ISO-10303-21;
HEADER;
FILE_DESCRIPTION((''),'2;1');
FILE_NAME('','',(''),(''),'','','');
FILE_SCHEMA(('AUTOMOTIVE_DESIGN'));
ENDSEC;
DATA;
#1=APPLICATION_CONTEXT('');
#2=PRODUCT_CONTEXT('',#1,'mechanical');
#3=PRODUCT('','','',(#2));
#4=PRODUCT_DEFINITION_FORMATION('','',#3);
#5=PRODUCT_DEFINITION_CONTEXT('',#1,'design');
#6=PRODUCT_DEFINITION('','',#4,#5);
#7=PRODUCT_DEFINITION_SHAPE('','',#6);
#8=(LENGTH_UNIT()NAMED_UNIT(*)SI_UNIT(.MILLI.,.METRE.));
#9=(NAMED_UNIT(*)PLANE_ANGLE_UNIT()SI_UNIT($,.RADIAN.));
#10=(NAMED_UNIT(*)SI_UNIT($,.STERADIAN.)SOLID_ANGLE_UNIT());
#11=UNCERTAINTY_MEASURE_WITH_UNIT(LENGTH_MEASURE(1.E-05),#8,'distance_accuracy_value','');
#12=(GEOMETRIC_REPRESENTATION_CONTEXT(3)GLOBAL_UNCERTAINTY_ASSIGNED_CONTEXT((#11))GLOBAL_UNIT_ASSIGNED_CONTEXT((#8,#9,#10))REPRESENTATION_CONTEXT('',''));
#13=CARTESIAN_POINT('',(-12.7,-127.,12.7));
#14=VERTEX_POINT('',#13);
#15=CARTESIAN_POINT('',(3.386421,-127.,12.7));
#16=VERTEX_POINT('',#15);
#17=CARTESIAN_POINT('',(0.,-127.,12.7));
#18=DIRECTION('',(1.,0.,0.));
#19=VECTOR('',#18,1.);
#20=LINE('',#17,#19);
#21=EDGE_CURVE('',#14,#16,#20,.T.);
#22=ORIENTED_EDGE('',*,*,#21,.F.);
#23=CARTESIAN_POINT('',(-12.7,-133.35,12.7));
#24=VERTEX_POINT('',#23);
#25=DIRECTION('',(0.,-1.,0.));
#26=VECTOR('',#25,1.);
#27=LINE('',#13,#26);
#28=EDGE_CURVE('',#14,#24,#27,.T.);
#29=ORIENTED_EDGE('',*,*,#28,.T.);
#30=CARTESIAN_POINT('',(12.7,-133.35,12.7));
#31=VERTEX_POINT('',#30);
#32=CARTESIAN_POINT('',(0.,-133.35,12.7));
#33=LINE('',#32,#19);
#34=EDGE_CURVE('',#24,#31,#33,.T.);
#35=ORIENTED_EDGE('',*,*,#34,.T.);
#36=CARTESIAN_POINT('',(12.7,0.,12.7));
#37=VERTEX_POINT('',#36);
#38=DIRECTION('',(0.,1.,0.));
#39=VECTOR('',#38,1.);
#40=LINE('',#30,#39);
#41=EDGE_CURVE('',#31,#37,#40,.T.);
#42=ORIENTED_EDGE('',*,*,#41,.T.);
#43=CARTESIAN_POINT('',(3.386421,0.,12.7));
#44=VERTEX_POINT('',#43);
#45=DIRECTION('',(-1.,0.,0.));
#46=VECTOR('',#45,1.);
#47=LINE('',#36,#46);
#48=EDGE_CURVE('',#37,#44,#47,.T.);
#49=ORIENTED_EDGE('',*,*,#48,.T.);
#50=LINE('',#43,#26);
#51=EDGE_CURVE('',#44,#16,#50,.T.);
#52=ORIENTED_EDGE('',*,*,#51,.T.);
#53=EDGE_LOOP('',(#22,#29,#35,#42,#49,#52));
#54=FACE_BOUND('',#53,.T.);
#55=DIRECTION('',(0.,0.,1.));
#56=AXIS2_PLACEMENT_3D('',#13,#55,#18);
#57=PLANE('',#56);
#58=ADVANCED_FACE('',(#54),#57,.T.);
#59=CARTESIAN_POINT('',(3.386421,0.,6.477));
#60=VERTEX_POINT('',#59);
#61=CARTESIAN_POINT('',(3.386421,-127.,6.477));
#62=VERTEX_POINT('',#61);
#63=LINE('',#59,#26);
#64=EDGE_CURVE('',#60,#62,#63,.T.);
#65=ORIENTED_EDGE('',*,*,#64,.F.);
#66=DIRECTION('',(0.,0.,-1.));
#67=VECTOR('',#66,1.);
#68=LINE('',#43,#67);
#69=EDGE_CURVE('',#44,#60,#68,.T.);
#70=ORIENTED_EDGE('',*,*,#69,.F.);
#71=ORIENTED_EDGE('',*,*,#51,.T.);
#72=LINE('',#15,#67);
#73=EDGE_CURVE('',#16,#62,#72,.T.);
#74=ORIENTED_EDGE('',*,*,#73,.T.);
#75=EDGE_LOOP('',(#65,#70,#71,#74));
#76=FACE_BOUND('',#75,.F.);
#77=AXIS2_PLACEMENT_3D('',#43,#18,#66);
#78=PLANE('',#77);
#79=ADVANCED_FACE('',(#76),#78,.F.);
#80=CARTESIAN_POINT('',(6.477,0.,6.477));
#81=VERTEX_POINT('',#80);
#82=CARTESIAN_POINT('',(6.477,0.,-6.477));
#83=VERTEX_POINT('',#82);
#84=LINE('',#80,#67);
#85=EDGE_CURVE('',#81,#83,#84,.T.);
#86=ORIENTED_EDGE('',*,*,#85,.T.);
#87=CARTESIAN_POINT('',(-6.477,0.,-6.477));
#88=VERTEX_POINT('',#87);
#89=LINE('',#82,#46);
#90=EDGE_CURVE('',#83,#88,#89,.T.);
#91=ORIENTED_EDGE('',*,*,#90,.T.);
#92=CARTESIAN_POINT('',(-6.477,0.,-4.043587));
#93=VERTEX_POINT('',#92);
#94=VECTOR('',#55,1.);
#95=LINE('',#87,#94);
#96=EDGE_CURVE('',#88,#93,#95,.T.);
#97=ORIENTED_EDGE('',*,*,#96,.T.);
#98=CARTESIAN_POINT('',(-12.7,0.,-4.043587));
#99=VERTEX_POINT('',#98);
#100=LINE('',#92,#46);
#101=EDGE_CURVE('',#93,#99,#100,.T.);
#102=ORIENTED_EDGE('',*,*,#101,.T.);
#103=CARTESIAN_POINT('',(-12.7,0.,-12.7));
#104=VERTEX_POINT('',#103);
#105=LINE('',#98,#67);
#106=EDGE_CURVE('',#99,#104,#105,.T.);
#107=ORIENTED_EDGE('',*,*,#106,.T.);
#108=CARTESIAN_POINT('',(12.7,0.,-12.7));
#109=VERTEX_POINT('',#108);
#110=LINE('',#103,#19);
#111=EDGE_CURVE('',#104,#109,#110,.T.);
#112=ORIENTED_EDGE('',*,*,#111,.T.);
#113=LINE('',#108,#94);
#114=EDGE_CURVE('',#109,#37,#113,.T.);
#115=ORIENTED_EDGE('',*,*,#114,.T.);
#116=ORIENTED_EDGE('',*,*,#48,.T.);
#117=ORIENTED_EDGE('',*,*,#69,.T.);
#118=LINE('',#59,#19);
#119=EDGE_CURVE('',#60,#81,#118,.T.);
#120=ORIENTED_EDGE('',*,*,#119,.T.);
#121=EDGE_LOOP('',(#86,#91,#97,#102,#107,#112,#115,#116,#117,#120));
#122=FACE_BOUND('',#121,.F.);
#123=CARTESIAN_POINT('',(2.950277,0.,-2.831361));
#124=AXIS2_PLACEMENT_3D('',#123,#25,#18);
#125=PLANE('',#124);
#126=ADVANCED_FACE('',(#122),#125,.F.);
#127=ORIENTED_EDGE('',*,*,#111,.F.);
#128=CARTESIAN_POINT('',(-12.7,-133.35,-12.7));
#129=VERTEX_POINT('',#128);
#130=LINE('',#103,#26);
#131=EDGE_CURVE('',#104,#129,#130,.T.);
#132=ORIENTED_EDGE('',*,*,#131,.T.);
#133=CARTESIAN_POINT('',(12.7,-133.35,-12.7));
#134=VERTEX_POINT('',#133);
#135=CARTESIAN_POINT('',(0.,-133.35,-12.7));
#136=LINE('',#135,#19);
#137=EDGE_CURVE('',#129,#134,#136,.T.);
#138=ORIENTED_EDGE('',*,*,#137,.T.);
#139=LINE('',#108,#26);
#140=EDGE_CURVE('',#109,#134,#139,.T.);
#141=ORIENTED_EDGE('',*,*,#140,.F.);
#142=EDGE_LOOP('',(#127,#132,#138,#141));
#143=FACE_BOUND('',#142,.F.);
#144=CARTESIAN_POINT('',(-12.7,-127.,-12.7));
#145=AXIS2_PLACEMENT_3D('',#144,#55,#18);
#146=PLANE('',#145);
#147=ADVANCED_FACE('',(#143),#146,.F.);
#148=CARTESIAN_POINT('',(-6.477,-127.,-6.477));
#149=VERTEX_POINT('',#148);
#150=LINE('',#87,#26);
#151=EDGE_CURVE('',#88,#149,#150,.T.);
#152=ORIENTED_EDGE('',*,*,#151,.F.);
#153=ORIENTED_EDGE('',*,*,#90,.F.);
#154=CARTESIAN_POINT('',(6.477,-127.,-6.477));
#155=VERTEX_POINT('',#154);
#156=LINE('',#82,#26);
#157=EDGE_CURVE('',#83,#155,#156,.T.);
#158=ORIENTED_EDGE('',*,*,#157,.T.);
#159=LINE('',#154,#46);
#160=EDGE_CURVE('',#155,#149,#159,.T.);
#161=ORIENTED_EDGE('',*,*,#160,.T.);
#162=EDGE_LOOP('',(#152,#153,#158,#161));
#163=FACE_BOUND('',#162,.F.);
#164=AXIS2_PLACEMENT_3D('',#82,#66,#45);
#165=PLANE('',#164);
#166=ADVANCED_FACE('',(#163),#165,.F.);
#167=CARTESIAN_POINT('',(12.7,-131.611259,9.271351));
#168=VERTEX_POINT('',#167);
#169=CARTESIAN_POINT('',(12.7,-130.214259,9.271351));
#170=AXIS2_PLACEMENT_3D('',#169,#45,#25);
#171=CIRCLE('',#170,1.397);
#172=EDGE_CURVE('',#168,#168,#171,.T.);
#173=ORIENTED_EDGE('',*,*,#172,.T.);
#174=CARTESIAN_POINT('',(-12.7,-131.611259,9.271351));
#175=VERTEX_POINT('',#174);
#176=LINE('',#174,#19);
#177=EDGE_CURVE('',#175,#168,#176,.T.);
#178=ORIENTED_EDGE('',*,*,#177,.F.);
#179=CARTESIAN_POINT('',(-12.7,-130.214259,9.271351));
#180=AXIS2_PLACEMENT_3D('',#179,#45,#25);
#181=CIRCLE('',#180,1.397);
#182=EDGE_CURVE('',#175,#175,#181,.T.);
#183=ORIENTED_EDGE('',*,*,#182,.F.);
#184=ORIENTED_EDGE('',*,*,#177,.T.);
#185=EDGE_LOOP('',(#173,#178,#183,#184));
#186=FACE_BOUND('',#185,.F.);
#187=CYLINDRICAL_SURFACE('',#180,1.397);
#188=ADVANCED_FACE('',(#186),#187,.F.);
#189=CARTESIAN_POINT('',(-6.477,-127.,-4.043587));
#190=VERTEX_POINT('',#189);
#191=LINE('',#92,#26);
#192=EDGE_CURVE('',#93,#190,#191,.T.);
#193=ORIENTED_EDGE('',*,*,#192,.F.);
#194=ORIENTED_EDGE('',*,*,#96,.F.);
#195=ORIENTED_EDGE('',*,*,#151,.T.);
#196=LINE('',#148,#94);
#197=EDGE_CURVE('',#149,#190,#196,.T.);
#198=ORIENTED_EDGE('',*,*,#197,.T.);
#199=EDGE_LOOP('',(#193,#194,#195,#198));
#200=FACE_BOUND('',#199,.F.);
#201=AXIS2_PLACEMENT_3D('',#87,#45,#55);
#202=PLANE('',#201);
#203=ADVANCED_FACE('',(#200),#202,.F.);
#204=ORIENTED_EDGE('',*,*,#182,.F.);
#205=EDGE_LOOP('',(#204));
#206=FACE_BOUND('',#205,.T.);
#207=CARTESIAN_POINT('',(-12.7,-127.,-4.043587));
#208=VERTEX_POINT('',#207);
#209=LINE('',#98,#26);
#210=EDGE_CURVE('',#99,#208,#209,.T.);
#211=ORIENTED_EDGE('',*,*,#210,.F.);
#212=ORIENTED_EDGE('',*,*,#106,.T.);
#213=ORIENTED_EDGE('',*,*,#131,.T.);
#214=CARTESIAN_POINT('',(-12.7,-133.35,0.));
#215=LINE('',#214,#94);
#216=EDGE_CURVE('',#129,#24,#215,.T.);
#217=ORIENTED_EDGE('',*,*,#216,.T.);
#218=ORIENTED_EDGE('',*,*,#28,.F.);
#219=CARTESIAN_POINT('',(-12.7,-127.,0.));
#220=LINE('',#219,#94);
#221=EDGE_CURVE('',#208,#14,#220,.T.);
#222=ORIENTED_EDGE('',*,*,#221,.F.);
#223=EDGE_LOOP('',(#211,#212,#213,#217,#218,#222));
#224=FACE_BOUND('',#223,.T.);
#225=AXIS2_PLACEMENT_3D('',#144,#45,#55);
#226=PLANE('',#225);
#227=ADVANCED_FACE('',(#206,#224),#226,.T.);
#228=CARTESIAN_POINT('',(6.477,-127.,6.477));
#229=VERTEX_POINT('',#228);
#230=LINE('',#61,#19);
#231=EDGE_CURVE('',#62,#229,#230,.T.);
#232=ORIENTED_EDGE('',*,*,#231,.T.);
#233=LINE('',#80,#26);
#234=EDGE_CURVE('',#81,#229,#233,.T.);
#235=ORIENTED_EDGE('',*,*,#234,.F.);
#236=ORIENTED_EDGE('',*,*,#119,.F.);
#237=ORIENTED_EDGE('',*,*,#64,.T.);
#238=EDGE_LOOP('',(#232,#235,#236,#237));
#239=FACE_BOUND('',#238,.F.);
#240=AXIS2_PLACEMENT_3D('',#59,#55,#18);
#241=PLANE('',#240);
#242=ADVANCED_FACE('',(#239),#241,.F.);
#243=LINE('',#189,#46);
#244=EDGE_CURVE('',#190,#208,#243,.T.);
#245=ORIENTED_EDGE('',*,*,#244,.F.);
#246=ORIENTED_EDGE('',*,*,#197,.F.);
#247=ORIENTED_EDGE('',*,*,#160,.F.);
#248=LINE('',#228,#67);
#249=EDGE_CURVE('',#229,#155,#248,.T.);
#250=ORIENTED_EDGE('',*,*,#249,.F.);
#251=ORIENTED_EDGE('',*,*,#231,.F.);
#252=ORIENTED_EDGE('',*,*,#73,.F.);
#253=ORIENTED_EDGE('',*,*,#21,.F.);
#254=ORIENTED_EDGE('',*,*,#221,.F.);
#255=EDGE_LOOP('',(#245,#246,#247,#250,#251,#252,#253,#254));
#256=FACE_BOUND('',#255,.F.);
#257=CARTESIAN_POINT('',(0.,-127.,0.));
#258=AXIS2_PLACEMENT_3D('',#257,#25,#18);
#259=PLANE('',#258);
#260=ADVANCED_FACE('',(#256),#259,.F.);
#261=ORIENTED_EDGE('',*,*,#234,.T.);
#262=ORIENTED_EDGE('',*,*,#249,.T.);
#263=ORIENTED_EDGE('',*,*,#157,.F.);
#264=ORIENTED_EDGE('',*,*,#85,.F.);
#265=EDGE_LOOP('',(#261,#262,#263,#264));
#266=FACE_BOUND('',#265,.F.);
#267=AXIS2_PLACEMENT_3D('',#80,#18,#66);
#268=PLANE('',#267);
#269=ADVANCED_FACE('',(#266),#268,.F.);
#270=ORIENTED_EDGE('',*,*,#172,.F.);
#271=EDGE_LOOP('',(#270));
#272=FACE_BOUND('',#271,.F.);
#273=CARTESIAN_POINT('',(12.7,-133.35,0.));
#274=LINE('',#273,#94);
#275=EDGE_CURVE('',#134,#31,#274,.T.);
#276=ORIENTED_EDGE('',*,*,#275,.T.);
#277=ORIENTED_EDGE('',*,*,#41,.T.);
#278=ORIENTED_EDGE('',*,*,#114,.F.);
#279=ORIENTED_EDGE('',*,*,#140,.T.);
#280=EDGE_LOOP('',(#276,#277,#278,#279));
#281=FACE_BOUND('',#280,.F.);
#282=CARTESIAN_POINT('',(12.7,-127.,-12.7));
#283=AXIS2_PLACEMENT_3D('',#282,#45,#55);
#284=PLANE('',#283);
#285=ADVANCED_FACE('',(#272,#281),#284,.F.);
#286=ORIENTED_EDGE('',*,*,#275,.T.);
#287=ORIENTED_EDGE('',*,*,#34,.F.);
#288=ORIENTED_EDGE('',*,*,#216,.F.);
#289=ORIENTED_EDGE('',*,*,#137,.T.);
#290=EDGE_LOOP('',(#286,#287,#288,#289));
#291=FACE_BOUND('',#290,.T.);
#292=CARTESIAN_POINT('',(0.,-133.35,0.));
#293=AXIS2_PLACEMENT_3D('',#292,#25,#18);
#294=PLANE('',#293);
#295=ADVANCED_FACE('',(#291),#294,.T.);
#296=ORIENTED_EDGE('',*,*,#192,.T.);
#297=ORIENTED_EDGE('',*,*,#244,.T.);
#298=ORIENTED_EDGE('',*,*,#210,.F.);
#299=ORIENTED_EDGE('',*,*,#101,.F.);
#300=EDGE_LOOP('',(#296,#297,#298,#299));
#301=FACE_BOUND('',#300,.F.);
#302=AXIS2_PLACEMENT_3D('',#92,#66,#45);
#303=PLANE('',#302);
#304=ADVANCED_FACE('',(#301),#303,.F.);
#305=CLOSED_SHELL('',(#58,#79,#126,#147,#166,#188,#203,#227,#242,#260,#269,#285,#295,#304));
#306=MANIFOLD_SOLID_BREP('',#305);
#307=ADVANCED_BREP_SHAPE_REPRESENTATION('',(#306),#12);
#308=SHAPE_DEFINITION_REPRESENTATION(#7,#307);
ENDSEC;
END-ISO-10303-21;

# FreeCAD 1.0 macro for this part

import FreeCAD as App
import Part
import Sketcher
from FreeCAD import Vector
Q = App.Units.Quantity


def add_polygon(sketch, points):
    """Adds a closed chain of lines whose ends are joined by coincident constraints."""
    first, n = sketch.GeometryCount, len(points)
    for a, b in zip(points, points[1:] + points[:1]):
        sketch.addGeometry(Part.LineSegment(App.Vector(*a, 0), App.Vector(*b, 0)), False)
    for i in range(n):
        sketch.addConstraint(Sketcher.Constraint("Coincident", first + i, 2, first + (i + 1) % n, 1))

doc = App.newDocument("Part")
body = doc.addObject("PartDesign::Body", "Body")

sketch1 = doc.addObject("Sketcher::SketchObject", "Sketch")
body.addObject(sketch1)
sketch1.AttachmentSupport = (doc.XZ_Plane, [""])
sketch1.MapMode = "FlatFace"
add_polygon(sketch1, [(12.7, 12.7), (3.4, 12.7), (3.4, 6.5), (6.5, 6.5), (6.5, -6.5), (-6.5, -6.5), (-6.5, -4), (-12.7, -4), (-12.7, -12.7), (12.7, -12.7)])
sketch1.addConstraint([
    Sketcher.Constraint("Horizontal", 0),
    Sketcher.Constraint("Vertical", 1),
    Sketcher.Constraint("Horizontal", 2),
    Sketcher.Constraint("Vertical", 3),
    Sketcher.Constraint("Horizontal", 4),
    Sketcher.Constraint("Vertical", 5),
    Sketcher.Constraint("Horizontal", 6),
    Sketcher.Constraint("Vertical", 7),
    Sketcher.Constraint("Horizontal", 8),
    Sketcher.Constraint("Vertical", 9),
    Sketcher.Constraint("Symmetric", 2, 2, 4, 2, -1, 1),
    Sketcher.Constraint("Symmetric", 7, 2, 9, 2, -1, 1),
    Sketcher.Constraint("Equal", 6, 1),
    Sketcher.Constraint("Equal", 4, 3),
    Sketcher.Constraint("DistanceX", 8, 1, 8, 2, Q("1 in")),
    Sketcher.Constraint("DistanceX", 4, 2, 4, 1, Q("0.51 in")),
    Sketcher.Constraint("DistanceX", 0, 2, 0, 1, Q("9.313579 mm")),
    Sketcher.Constraint("DistanceY", 5, 1, 5, 2, Q("2.433413 mm")),
])
pad1 = doc.addObject("PartDesign::Pad", "Pad")
body.addObject(pad1)
pad1.Profile = sketch1
pad1.Length = Q("5 in")

sketch2 = doc.addObject("Sketcher::SketchObject", "Sketch001")
body.addObject(sketch2)
sketch2.AttachmentSupport = (doc.XZ_Plane, [""])
sketch2.MapMode = "FlatFace"
sketch2.AttachmentOffset = App.Placement(Vector(0, 0, 5 * 25.4), App.Rotation())
add_polygon(sketch2, [(-13, 13), (-13, -13), (13, -13), (13, 13)])
sketch2.addConstraint([
    Sketcher.Constraint("Vertical", 0),
    Sketcher.Constraint("Horizontal", 1),
    Sketcher.Constraint("Vertical", 2),
    Sketcher.Constraint("Horizontal", 3),
    Sketcher.Constraint("Symmetric", 0, 2, 2, 2, -1, 1),
    Sketcher.Constraint("Equal", 3, 0),
    Sketcher.Constraint("DistanceX", 1, 1, 1, 2, Q("1 in")),
])
pad2 = doc.addObject("PartDesign::Pad", "Pad001")
body.addObject(pad2)
pad2.Profile = sketch2
pad2.Length = Q("0.25 in")

sketch3 = doc.addObject("Sketcher::SketchObject", "Sketch002")
body.addObject(sketch3)
sketch3.AttachmentSupport = (doc.YZ_Plane, [""])
sketch3.MapMode = "FlatFace"
sketch3.AttachmentOffset = App.Placement(Vector(0, 0, -0.5 * 25.4), App.Rotation())
sketch3.addGeometry(Part.Circle(Vector(-130.2, 9.3, 0), Vector(0, 0, 1), 1.4), False)
sketch3.addConstraint([
    Sketcher.Constraint("Diameter", 0, Q("0.11 in")),
    Sketcher.Constraint("DistanceX", 0, 3, -1, 1, Q("130.214259 mm")),
    Sketcher.Constraint("DistanceY", -1, 1, 0, 3, Q("9.271351 mm")),
])
pocket1 = doc.addObject("PartDesign::Pocket", "Pocket")
body.addObject(pocket1)
pocket1.Profile = sketch3
pocket1.Type = "ThroughAll"
pocket1.Reversed = True

doc.recompute()
